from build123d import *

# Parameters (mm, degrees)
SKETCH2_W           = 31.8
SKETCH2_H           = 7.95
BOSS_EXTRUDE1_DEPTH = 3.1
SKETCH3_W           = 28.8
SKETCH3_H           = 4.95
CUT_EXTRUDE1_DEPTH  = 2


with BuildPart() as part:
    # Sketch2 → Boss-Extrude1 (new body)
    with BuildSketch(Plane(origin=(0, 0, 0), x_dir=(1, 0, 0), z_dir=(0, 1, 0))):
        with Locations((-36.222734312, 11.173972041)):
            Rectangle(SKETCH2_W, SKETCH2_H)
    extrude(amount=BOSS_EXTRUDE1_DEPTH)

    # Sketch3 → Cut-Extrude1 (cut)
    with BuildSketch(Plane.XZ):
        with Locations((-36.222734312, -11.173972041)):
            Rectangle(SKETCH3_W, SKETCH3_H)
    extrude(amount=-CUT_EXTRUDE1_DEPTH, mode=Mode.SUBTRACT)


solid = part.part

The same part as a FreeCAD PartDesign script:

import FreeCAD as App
import Part
import Sketcher

V = App.Vector


def add_polygon(sketch, points):
    """Adds a closed chain of lines whose ends are joined by coincident constraints."""
    first, n = sketch.GeometryCount, len(points)
    for a, b in zip(points, points[1:] + points[:1]):
        sketch.addGeometry(Part.LineSegment(App.Vector(*a, 0), App.Vector(*b, 0)), False)
    for i in range(n):
        sketch.addConstraint(Sketcher.Constraint("Coincident", first + i, 2, first + (i + 1) % n, 1))

doc = App.newDocument("Part")
body = doc.addObject("PartDesign::Body", "Body")

# Sketch on XZ plane
sketch1 = body.newObject("Sketcher::SketchObject", "Sketch")
sketch1.AttachmentSupport = (doc.getObject("XZ_Plane"), [""])
sketch1.MapMode = "FlatFace"
add_polygon(sketch1, [(-52, -15), (-52, -7), (-20, -7), (-20, -15)])  # lines 0-3
sketch1.addConstraint([
    Sketcher.Constraint("Vertical", 0),
    Sketcher.Constraint("Horizontal", 1),
    Sketcher.Constraint("Vertical", 2),
    Sketcher.Constraint("Horizontal", 3),
    Sketcher.Constraint("DistanceX", 1, 1, 1, 2, 31.8),
    Sketcher.Constraint("DistanceY", 0, 1, 0, 2, 7.95),
    Sketcher.Constraint("DistanceX", 0, 2, -1, 1, 52.122734),
    Sketcher.Constraint("DistanceY", 0, 2, -1, 1, 7.198972),
])
pad1 = body.newObject("PartDesign::Pad", "Pad")
pad1.Profile = sketch1
pad1.Length = 3.1
pad1.Reversed = True

# Sketch on XZ plane
sketch2 = body.newObject("Sketcher::SketchObject", "Sketch001")
sketch2.AttachmentSupport = (doc.getObject("XZ_Plane"), [""])
sketch2.MapMode = "FlatFace"
add_polygon(sketch2, [(-50.6, -8.7), (-50.6, -13.6), (-21.8, -13.6), (-21.8, -8.7)])  # lines 0-3
sketch2.addConstraint([
    Sketcher.Constraint("Vertical", 0),
    Sketcher.Constraint("Horizontal", 1),
    Sketcher.Constraint("Vertical", 2),
    Sketcher.Constraint("Horizontal", 3),
    Sketcher.Constraint("DistanceX", 1, 1, 1, 2, 28.8),
    Sketcher.Constraint("DistanceY", 0, 2, 0, 1, 4.95),
    Sketcher.Constraint("DistanceX", 0, 2, -1, 1, 50.622734),
    Sketcher.Constraint("DistanceY", 0, 2, -1, 1, 13.648972),
])
pocket1 = body.newObject("PartDesign::Pocket", "Pocket")
pocket1.Profile = sketch2
pocket1.Length = 2

doc.recompute()
